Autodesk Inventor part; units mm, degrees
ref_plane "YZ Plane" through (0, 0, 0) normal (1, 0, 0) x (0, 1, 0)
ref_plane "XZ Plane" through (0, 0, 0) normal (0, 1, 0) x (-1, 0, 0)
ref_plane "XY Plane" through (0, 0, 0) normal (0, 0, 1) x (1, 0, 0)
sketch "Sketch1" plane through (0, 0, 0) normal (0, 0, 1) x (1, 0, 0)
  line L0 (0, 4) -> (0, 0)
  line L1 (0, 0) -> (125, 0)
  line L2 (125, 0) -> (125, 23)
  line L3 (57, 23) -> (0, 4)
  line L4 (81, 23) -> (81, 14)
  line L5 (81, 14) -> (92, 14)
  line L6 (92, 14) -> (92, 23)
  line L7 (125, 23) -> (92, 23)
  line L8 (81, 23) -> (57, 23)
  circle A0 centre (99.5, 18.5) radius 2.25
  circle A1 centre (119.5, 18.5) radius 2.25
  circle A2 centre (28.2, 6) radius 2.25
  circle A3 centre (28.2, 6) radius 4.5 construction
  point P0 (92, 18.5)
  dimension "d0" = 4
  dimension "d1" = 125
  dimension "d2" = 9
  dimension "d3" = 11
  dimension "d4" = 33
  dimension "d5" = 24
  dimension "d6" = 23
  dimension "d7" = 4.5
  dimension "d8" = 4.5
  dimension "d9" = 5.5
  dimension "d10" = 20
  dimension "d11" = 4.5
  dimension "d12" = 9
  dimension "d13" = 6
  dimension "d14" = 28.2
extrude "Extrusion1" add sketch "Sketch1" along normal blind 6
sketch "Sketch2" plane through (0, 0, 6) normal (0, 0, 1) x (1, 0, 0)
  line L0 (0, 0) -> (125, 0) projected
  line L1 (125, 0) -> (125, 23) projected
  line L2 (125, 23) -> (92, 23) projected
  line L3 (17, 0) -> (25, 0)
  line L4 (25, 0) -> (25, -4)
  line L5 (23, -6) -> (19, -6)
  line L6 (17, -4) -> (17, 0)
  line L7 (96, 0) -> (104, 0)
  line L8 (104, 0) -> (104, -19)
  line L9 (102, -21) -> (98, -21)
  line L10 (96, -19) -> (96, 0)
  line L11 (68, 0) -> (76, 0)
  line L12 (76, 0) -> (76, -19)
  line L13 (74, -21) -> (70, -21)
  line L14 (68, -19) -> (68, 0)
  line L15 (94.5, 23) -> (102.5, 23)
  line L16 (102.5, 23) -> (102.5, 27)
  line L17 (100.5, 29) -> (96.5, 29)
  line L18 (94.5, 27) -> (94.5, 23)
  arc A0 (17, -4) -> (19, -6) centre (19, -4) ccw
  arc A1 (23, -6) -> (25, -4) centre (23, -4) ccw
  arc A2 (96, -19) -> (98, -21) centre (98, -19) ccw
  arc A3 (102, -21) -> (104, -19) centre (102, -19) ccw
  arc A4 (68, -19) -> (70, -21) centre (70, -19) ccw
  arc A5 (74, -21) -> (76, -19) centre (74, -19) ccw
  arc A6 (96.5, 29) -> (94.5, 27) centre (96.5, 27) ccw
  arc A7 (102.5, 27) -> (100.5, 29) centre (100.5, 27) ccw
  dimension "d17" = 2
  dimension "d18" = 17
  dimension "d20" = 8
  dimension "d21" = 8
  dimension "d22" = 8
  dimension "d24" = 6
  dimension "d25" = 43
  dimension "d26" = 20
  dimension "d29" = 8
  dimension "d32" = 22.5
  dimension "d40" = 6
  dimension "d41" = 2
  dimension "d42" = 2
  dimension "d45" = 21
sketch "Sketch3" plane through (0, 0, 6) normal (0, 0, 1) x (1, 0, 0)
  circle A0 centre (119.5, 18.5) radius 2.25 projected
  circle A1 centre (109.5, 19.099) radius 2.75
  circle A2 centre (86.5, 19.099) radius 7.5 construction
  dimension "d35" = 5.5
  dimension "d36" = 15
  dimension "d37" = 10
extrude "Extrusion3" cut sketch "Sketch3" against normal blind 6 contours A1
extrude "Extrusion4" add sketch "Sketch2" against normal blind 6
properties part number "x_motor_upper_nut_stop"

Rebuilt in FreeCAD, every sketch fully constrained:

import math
import FreeCAD as App
import Part
import Sketcher
from FreeCAD import Vector

doc = App.newDocument("Part")
body = doc.addObject("PartDesign::Body", "Body")

sketch1 = body.newObject("Sketcher::SketchObject", "Sketch")
sketch1.AttachmentSupport = (doc.getObject("XY_Plane"), [""])
sketch1.MapMode = "FlatFace"
sketch1.addGeometry([
    Part.LineSegment(Vector(57, 23, 0), Vector(0, 4, 0)),
    Part.LineSegment(Vector(0, 4, 0), Vector(0, 0, 0)),
    Part.LineSegment(Vector(0, 0, 0), Vector(125, 0, 0)),
    Part.LineSegment(Vector(125, 0, 0), Vector(125, 23, 0)),
    Part.LineSegment(Vector(125, 23, 0), Vector(92, 23, 0)),
    Part.LineSegment(Vector(92, 23, 0), Vector(92, 14, 0)),
    Part.LineSegment(Vector(92, 14, 0), Vector(81, 14, 0)),
    Part.LineSegment(Vector(81, 14, 0), Vector(81, 23, 0)),
    Part.LineSegment(Vector(81, 23, 0), Vector(57, 23, 0)),
    Part.Circle(Vector(28.2, 6, 0), Vector(0, 0, 1), 2.2),
    Part.Circle(Vector(99.5, 18.5, 0), Vector(0, 0, 1), 2.2),
    Part.Circle(Vector(119.5, 18.5, 0), Vector(0, 0, 1), 2.2),
], False)
sketch1.addConstraint([
    Sketcher.Constraint("Coincident", 0, 2, 1, 1),
    Sketcher.Constraint("Coincident", 1, 2, 2, 1),
    Sketcher.Constraint("Coincident", 2, 2, 3, 1),
    Sketcher.Constraint("Coincident", 3, 2, 4, 1),
    Sketcher.Constraint("Coincident", 4, 2, 5, 1),
    Sketcher.Constraint("Coincident", 5, 2, 6, 1),
    Sketcher.Constraint("Coincident", 6, 2, 7, 1),
    Sketcher.Constraint("Coincident", 7, 2, 8, 1),
    Sketcher.Constraint("Coincident", 8, 2, 0, 1),
    Sketcher.Constraint("Vertical", 1),
    Sketcher.Constraint("Horizontal", 2),
    Sketcher.Constraint("Vertical", 3),
    Sketcher.Constraint("Horizontal", 4),
    Sketcher.Constraint("Vertical", 5),
    Sketcher.Constraint("Horizontal", 6),
    Sketcher.Constraint("Vertical", 7),
    Sketcher.Constraint("Horizontal", 8),
    Sketcher.Constraint("Coincident", 1, 2, -1, 1),
    Sketcher.Constraint("Equal", 9, 10),
    Sketcher.Constraint("Equal", 10, 11),
    Sketcher.Constraint("Horizontal", 10, 3, 11, 3),
    Sketcher.Constraint("Horizontal", 4, 2, 7, 2),
    Sketcher.Constraint("Diameter", 9, 4.5),
    Sketcher.Constraint("DistanceX", 2, 1, 2, 2, 125.0),
    Sketcher.Constraint("DistanceX", 4, 2, 4, 1, 33.0),
    Sketcher.Constraint("DistanceX", 6, 2, 6, 1, 11.0),
    Sketcher.Constraint("DistanceX", 8, 2, 8, 1, 24.0),
    Sketcher.Constraint("DistanceY", 1, 2, 1, 1, 4.0),
    Sketcher.Constraint("DistanceY", 3, 1, 3, 2, 23.0),
    Sketcher.Constraint("DistanceY", 5, 2, 5, 1, 9.0),
    Sketcher.Constraint("DistanceY", -1, 1, 9, 3, 6.0),
    Sketcher.Constraint("DistanceX", 10, 3, 11, 3, 20.0),
    Sketcher.Constraint("DistanceX", -1, 1, 9, 3, 28.2),
    Sketcher.Constraint("DistanceX", 11, 3, 2, 2, 5.5),
    Sketcher.Constraint("DistanceY", 11, 3, 3, 2, 4.5),
])
pad1 = body.newObject("PartDesign::Pad", "Pad")
pad1.Profile = sketch1
pad1.Length = 6

sketch2 = body.newObject("Sketcher::SketchObject", "Sketch001")
sketch2.AttachmentSupport = (doc.getObject("XY_Plane"), [""])
sketch2.MapMode = "FlatFace"
sketch2.AttachmentOffset = App.Placement(Vector(0, 0, 6), App.Rotation())
sketch2.addGeometry(Part.Circle(Vector(109.5, 19.1, 0), Vector(0, 0, 1), 2.8), False)
sketch2.addConstraint([
    Sketcher.Constraint("Diameter", 0, 5.5),
    Sketcher.Constraint("DistanceX", -1, 1, 0, 3, 109.5),
    Sketcher.Constraint("DistanceY", -1, 1, 0, 3, 19.099),
])
pocket1 = body.newObject("PartDesign::Pocket", "Pocket")
pocket1.Profile = sketch2
pocket1.Length = 6

sketch3 = body.newObject("Sketcher::SketchObject", "Sketch002")
sketch3.AttachmentSupport = (doc.getObject("XY_Plane"), [""])
sketch3.MapMode = "FlatFace"
sketch3.AttachmentOffset = App.Placement(Vector(0, 0, 6), App.Rotation())
sketch3.addGeometry([
    Part.LineSegment(Vector(94.5, 23, 0), Vector(102.5, 23, 0)),
    Part.LineSegment(Vector(102.5, 23, 0), Vector(102.5, 27, 0)),
    Part.ArcOfCircle(Part.Circle(Vector(100.5, 27, 0), Vector(0, 0, 1), 2), math.radians(0), math.radians(90)),
    Part.LineSegment(Vector(100.5, 29, 0), Vector(96.5, 29, 0)),
    Part.ArcOfCircle(Part.Circle(Vector(96.5, 27, 0), Vector(0, 0, 1), 2), math.radians(90), math.radians(180)),
    Part.LineSegment(Vector(94.5, 27, 0), Vector(94.5, 23, 0)),
    Part.LineSegment(Vector(104, 0, 0), Vector(96, 0, 0)),
    Part.LineSegment(Vector(96, 0, 0), Vector(96, -19, 0)),
    Part.ArcOfCircle(Part.Circle(Vector(98, -19, 0), Vector(0, 0, 1), 2), math.radians(180), math.radians(270)),
    Part.LineSegment(Vector(98, -21, 0), Vector(102, -21, 0)),
    Part.ArcOfCircle(Part.Circle(Vector(102, -19, 0), Vector(0, 0, 1), 2), math.radians(-90), math.radians(0)),
    Part.LineSegment(Vector(104, -19, 0), Vector(104, 0, 0)),
    Part.LineSegment(Vector(76, 0, 0), Vector(68, 0, 0)),
    Part.LineSegment(Vector(68, 0, 0), Vector(68, -19, 0)),
    Part.ArcOfCircle(Part.Circle(Vector(70, -19, 0), Vector(0, 0, 1), 2), math.radians(180), math.radians(270)),
    Part.LineSegment(Vector(70, -21, 0), Vector(74, -21, 0)),
    Part.ArcOfCircle(Part.Circle(Vector(74, -19, 0), Vector(0, 0, 1), 2), math.radians(-90), math.radians(0)),
    Part.LineSegment(Vector(76, -19, 0), Vector(76, 0, 0)),
    Part.LineSegment(Vector(25, 0, 0), Vector(17, 0, 0)),
    Part.LineSegment(Vector(17, 0, 0), Vector(17, -4, 0)),
    Part.ArcOfCircle(Part.Circle(Vector(19, -4, 0), Vector(0, 0, 1), 2), math.radians(180), math.radians(270)),
    Part.LineSegment(Vector(19, -6, 0), Vector(23, -6, 0)),
    Part.ArcOfCircle(Part.Circle(Vector(23, -4, 0), Vector(0, 0, 1), 2), math.radians(-90), math.radians(0)),
    Part.LineSegment(Vector(25, -4, 0), Vector(25, 0, 0)),
], False)
sketch3.addConstraint([
    Sketcher.Constraint("Coincident", 0, 2, 1, 1),
    Sketcher.Constraint("Tangent", 1, 2, 2, 1),
    Sketcher.Constraint("Tangent", 2, 2, 3, 1),
    Sketcher.Constraint("Tangent", 3, 2, 4, 1),
    Sketcher.Constraint("Tangent", 4, 2, 5, 1),
    Sketcher.Constraint("Coincident", 5, 2, 0, 1),
    Sketcher.Constraint("Coincident", 6, 2, 7, 1),
    Sketcher.Constraint("Tangent", 7, 2, 8, 1),
    Sketcher.Constraint("Tangent", 8, 2, 9, 1),
    Sketcher.Constraint("Tangent", 9, 2, 10, 1),
    Sketcher.Constraint("Tangent", 10, 2, 11, 1),
    Sketcher.Constraint("Coincident", 11, 2, 6, 1),
    Sketcher.Constraint("Coincident", 12, 2, 13, 1),
    Sketcher.Constraint("Tangent", 13, 2, 14, 1),
    Sketcher.Constraint("Tangent", 14, 2, 15, 1),
    Sketcher.Constraint("Tangent", 15, 2, 16, 1),
    Sketcher.Constraint("Tangent", 16, 2, 17, 1),
    Sketcher.Constraint("Coincident", 17, 2, 12, 1),
    Sketcher.Constraint("Coincident", 18, 2, 19, 1),
    Sketcher.Constraint("Tangent", 19, 2, 20, 1),
    Sketcher.Constraint("Tangent", 20, 2, 21, 1),
    Sketcher.Constraint("Tangent", 21, 2, 22, 1),
    Sketcher.Constraint("Tangent", 22, 2, 23, 1),
    Sketcher.Constraint("Coincident", 23, 2, 18, 1),
    Sketcher.Constraint("Horizontal", 0),
    Sketcher.Constraint("Vertical", 1),
    Sketcher.Constraint("Horizontal", 3),
    Sketcher.Constraint("Vertical", 5),
    Sketcher.Constraint("Horizontal", 6),
    Sketcher.Constraint("Vertical", 7),
    Sketcher.Constraint("Horizontal", 9),
    Sketcher.Constraint("Vertical", 11),
    Sketcher.Constraint("Horizontal", 12),
    Sketcher.Constraint("Vertical", 13),
    Sketcher.Constraint("Horizontal", 15),
    Sketcher.Constraint("Vertical", 17),
    Sketcher.Constraint("Horizontal", 18),
    Sketcher.Constraint("Vertical", 19),
    Sketcher.Constraint("Horizontal", 21),
    Sketcher.Constraint("Vertical", 23),
    Sketcher.Constraint("Equal", 2, 4),
    Sketcher.Constraint("Equal", 4, 8),
    Sketcher.Constraint("Equal", 8, 10),
    Sketcher.Constraint("Equal", 10, 14),
    Sketcher.Constraint("Equal", 14, 16),
    Sketcher.Constraint("Equal", 16, 20),
    Sketcher.Constraint("Equal", 20, 22),
    Sketcher.Constraint("PointOnObject", 6, 2, -1),
    Sketcher.Constraint("PointOnObject", 12, 2, -1),
    Sketcher.Constraint("PointOnObject", 18, 2, -1),
    Sketcher.Constraint("Horizontal", 10, 3, 14, 3),
    Sketcher.Constraint("Equal", 0, 6),
    Sketcher.Constraint("Equal", 6, 12),
    Sketcher.Constraint("Equal", 12, 18),
    Sketcher.Constraint("Equal", 21, 1),
    Sketcher.Constraint("Equal", 5, 19),
    Sketcher.Constraint("Radius", 2, 2.0),
    Sketcher.Constraint("DistanceX", 0, 1, 0, 2, 8.0),
    Sketcher.Constraint("DistanceY", 8, 2, -1, 1, 21.0),
    Sketcher.Constraint("DistanceX", -1, 1, 18, 2, 17.0),
    Sketcher.Constraint("DistanceX", 17, 2, 6, 2, 20.0),
    Sketcher.Constraint("DistanceX", 16, 3, 4, 3, 22.5),
    Sketcher.Constraint("DistanceY", -1, 1, 2, 3, 27.0),
    Sketcher.Constraint("DistanceX", -1, 1, 8, 3, 98.0),
])
pad2 = body.newObject("PartDesign::Pad", "Pad001")
pad2.Profile = sketch3
pad2.Length = 6
pad2.Reversed = True

doc.recompute()
